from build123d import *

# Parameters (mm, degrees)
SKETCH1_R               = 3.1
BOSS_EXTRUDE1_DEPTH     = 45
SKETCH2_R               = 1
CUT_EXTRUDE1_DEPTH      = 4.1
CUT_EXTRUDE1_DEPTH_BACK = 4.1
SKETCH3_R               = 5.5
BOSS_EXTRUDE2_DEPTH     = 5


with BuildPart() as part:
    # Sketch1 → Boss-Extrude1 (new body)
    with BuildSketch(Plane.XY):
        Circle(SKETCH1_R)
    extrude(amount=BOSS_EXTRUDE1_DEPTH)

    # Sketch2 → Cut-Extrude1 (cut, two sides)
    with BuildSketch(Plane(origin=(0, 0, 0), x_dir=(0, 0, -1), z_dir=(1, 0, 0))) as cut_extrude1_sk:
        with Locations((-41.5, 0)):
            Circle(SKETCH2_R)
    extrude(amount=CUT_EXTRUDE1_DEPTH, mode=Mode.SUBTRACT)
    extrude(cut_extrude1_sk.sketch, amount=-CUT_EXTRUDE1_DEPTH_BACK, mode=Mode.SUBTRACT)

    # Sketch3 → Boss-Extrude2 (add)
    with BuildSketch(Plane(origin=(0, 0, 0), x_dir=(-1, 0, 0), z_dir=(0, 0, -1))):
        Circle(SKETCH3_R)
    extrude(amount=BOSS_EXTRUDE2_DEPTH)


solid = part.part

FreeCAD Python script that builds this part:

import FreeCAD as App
import Part
import Sketcher
from FreeCAD import Vector
Q = App.Units.Quantity

doc = App.newDocument("Part")
body = doc.addObject("PartDesign::Body", "Body")

# Sketch on XY plane
sketch1 = doc.addObject("Sketcher::SketchObject", "Sketch")
body.addObject(sketch1)
sketch1.AttachmentSupport = (doc.XY_Plane, [""])
sketch1.MapMode = "FlatFace"
sketch1.addGeometry(Part.Circle(Vector(0, 0, 0), Vector(0, 0, 1), 3.1), False)
sketch1.addConstraint([
    Sketcher.Constraint("Coincident", 0, 3, -1, 1),
    Sketcher.Constraint("Diameter", 0, Q("6.2 mm")),
])
pad1 = doc.addObject("PartDesign::Pad", "Pad")
body.addObject(pad1)
pad1.Profile = sketch1
pad1.Length = 45

# Sketch on YZ plane
sketch2 = doc.addObject("Sketcher::SketchObject", "Sketch001")
body.addObject(sketch2)
sketch2.AttachmentSupport = (doc.YZ_Plane, [""])
sketch2.MapMode = "FlatFace"
sketch2.addGeometry(Part.Circle(Vector(0, 41.5, 0), Vector(0, 0, 1), 1), False)
sketch2.addConstraint([
    Sketcher.Constraint("PointOnObject", 0, 3, -2),
    Sketcher.Constraint("Diameter", 0, Q("2 mm")),
    Sketcher.Constraint("DistanceY", -1, 1, 0, 3, Q("41.5 mm")),
])
pocket1 = doc.addObject("PartDesign::Pocket", "Pocket")
body.addObject(pocket1)
pocket1.Profile = sketch2
pocket1.Type = "ThroughAll"
pocket1.Midplane = True

# Sketch on XY plane
sketch3 = doc.addObject("Sketcher::SketchObject", "Sketch002")
body.addObject(sketch3)
sketch3.AttachmentSupport = (doc.XY_Plane, [""])
sketch3.MapMode = "FlatFace"
sketch3.addGeometry(Part.Circle(Vector(0, 0, 0), Vector(0, 0, 1), 6), False)
sketch3.addConstraint([
    Sketcher.Constraint("Coincident", 0, 3, -1, 1),
    Sketcher.Constraint("Diameter", 0, Q("11 mm")),
])
pad2 = doc.addObject("PartDesign::Pad", "Pad001")
body.addObject(pad2)
pad2.Profile = sketch3
pad2.Length = 5
pad2.Reversed = True

doc.recompute()
